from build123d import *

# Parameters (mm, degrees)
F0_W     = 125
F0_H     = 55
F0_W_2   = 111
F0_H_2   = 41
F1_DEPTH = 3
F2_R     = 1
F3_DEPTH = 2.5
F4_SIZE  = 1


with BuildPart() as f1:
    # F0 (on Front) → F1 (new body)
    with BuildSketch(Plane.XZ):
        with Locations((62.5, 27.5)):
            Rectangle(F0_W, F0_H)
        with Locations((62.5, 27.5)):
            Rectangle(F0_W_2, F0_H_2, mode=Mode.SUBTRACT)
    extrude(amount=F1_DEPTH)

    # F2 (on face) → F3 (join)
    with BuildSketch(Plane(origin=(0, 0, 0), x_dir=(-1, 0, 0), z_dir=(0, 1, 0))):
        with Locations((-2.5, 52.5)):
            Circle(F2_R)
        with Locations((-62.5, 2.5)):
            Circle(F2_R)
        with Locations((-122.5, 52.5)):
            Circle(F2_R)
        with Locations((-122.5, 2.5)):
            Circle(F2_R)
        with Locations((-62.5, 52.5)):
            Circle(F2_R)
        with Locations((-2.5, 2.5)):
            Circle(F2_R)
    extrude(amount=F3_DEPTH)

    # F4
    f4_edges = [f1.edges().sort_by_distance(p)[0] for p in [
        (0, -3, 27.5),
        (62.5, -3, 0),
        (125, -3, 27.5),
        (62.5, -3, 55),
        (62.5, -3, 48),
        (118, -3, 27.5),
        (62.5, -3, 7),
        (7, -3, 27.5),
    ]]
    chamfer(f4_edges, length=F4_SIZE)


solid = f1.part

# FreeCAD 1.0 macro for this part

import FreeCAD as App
import Part
import Sketcher


def edges_at(feature, points):
    """Names of the edges that pass closest to the given points."""
    edges = feature.Shape.Edges
    near = lambda p: min(range(len(edges)), key=lambda i: edges[i].distToShape(Part.Vertex(*p))[0])
    return sorted({f"Edge{near(p) + 1}" for p in points})

doc = App.newDocument("Part")
params = doc.addObject("Spreadsheet::Sheet", "Params")
for row, (alias, value) in enumerate([
    ("sketch1_width", "125 mm"),
    ("sketch1_width2", "111 mm"),
    ("sketch1_height", "55 mm"),
    ("sketch1_height2", "41 mm"),
    ("pad1_length", "3 mm"),
    ("sketch2_diameter", "2 mm"),
    ("pad2_length", "2.5 mm"),
    ("chamfer_size", "1 mm"),
], start=1):
    params.set(f"A{row}", alias)
    params.set(f"B{row}", "=" + value)
    params.setAlias(f"B{row}", alias)

body = doc.addObject("PartDesign::Body", "Body")

sketch1 = doc.addObject("Sketcher::SketchObject", "Sketch")
body.addObject(sketch1)
sketch1.AttachmentSupport = (doc.XZ_Plane, [""])
sketch1.MapMode = "FlatFace"
sketch1.addGeometry([
    Part.LineSegment(App.Vector(0, 55, 0), App.Vector(0, 0, 0)),
    Part.LineSegment(App.Vector(0, 0, 0), App.Vector(125, 0, 0)),
    Part.LineSegment(App.Vector(125, 0, 0), App.Vector(125, 55, 0)),
    Part.LineSegment(App.Vector(125, 55, 0), App.Vector(0, 55, 0)),
    Part.LineSegment(App.Vector(118, 7, 0), App.Vector(7, 7, 0)),
    Part.LineSegment(App.Vector(7, 7, 0), App.Vector(7, 48, 0)),
    Part.LineSegment(App.Vector(7, 48, 0), App.Vector(118, 48, 0)),
    Part.LineSegment(App.Vector(118, 48, 0), App.Vector(118, 7, 0)),
], False)
sketch1.addConstraint([
    Sketcher.Constraint("Coincident", 0, 2, 1, 1),
    Sketcher.Constraint("Coincident", 1, 2, 2, 1),
    Sketcher.Constraint("Coincident", 2, 2, 3, 1),
    Sketcher.Constraint("Coincident", 3, 2, 0, 1),
    Sketcher.Constraint("Coincident", 4, 2, 5, 1),
    Sketcher.Constraint("Coincident", 5, 2, 6, 1),
    Sketcher.Constraint("Coincident", 6, 2, 7, 1),
    Sketcher.Constraint("Coincident", 7, 2, 4, 1),
    Sketcher.Constraint("Vertical", 0),
    Sketcher.Constraint("Horizontal", 1),
    Sketcher.Constraint("Vertical", 2),
    Sketcher.Constraint("Horizontal", 3),
    Sketcher.Constraint("Horizontal", 4),
    Sketcher.Constraint("Vertical", 5),
    Sketcher.Constraint("Horizontal", 6),
    Sketcher.Constraint("Vertical", 7),
    Sketcher.Constraint("Coincident", 0, 2, -1, 1),
    Sketcher.Constraint("DistanceX", 1, 1, 1, 2, 125.0),
    Sketcher.Constraint("DistanceX", 4, 2, 4, 1, 111.0),
    Sketcher.Constraint("DistanceY", 0, 2, 0, 1, 55.0),
    Sketcher.Constraint("DistanceY", 5, 1, 5, 2, 41.0),
    Sketcher.Constraint("DistanceX", -1, 1, 4, 2, 7.0),
    Sketcher.Constraint("DistanceY", -1, 1, 4, 2, 7.0),
])
sketch1.setExpression("Constraints[17]", "Params.sketch1_width")
sketch1.setExpression("Constraints[18]", "Params.sketch1_width2")
sketch1.setExpression("Constraints[19]", "Params.sketch1_height")
sketch1.setExpression("Constraints[20]", "Params.sketch1_height2")
pad1 = doc.addObject("PartDesign::Pad", "Pad")
body.addObject(pad1)
pad1.Profile = sketch1
pad1.setExpression("Length", "Params.pad1_length")

sketch2 = doc.addObject("Sketcher::SketchObject", "Sketch001")
body.addObject(sketch2)
sketch2.AttachmentSupport = (doc.XZ_Plane, [""])
sketch2.MapMode = "FlatFace"
sketch2.addGeometry([
    Part.Circle(App.Vector(2.5, 52.5, 0), App.Vector(0, 0, 1), 1),
    Part.Circle(App.Vector(62.5, 2.5, 0), App.Vector(0, 0, 1), 1),
    Part.Circle(App.Vector(122.5, 52.5, 0), App.Vector(0, 0, 1), 1),
    Part.Circle(App.Vector(122.5, 2.5, 0), App.Vector(0, 0, 1), 1),
    Part.Circle(App.Vector(62.5, 52.5, 0), App.Vector(0, 0, 1), 1),
    Part.Circle(App.Vector(2.5, 2.5, 0), App.Vector(0, 0, 1), 1),
], False)
sketch2.addConstraint([
    Sketcher.Constraint("Equal", 0, 1),
    Sketcher.Constraint("Equal", 1, 2),
    Sketcher.Constraint("Equal", 2, 3),
    Sketcher.Constraint("Equal", 3, 4),
    Sketcher.Constraint("Equal", 4, 5),
    Sketcher.Constraint("Horizontal", 0, 3, 2, 3),
    Sketcher.Constraint("Horizontal", 1, 3, 3, 3),
    Sketcher.Constraint("Horizontal", 2, 3, 4, 3),
    Sketcher.Constraint("Horizontal", 3, 3, 5, 3),
    Sketcher.Constraint("Vertical", 2, 3, 3, 3),
    Sketcher.Constraint("Vertical", 1, 3, 4, 3),
    Sketcher.Constraint("Vertical", 0, 3, 5, 3),
    Sketcher.Constraint("Diameter", 0, 2.0),
    Sketcher.Constraint("DistanceX", 0, 3, 1, 3, 60.0),
    Sketcher.Constraint("DistanceY", 1, 3, 0, 3, 50.0),
    Sketcher.Constraint("DistanceX", 1, 3, 2, 3, 60.0),
    Sketcher.Constraint("DistanceX", -1, 1, 0, 3, 2.5),
    Sketcher.Constraint("DistanceY", -1, 1, 0, 3, 52.5),
])
sketch2.setExpression("Constraints[12]", "Params.sketch2_diameter")
pad2 = doc.addObject("PartDesign::Pad", "Pad001")
body.addObject(pad2)
pad2.Profile = sketch2
pad2.setExpression("Length", "Params.pad2_length")
pad2.Reversed = True
doc.recompute()

chamfer = doc.addObject("PartDesign::Chamfer", "Chamfer")
body.addObject(chamfer)
chamfer.Base = (pad2, edges_at(pad2, [
    (0, -3, 27.5),
    (62.5, -3, 0),
    (125, -3, 27.5),
    (62.5, -3, 55),
    (62.5, -3, 48),
    (118, -3, 27.5),
    (62.5, -3, 7),
    (7, -3, 27.5),
]))
chamfer.setExpression("Size", "Params.chamfer_size")

doc.recompute()
